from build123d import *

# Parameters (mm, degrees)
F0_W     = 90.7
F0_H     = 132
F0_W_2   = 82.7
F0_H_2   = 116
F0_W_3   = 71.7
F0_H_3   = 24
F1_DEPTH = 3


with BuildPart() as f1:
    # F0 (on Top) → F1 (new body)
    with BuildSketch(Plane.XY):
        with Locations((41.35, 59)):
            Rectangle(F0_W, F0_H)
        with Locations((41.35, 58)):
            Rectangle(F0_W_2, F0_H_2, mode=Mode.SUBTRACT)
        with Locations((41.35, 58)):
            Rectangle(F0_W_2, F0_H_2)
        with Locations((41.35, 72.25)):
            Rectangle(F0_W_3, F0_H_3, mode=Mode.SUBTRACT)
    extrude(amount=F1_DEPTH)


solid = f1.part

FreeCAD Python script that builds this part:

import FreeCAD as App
import Part
import Sketcher
from FreeCAD import Vector
Q = App.Units.Quantity


def add_polygon(sketch, points):
    """Adds a closed chain of lines whose ends are joined by coincident constraints."""
    first, n = sketch.GeometryCount, len(points)
    for a, b in zip(points, points[1:] + points[:1]):
        sketch.addGeometry(Part.LineSegment(App.Vector(*a, 0), App.Vector(*b, 0)), False)
    for i in range(n):
        sketch.addConstraint(Sketcher.Constraint("Coincident", first + i, 2, first + (i + 1) % n, 1))

doc = App.newDocument("Part")
body = doc.addObject("PartDesign::Body", "Body")

# Sketch on XY plane
sketch1 = body.newObject("Sketcher::SketchObject", "Sketch")
sketch1.AttachmentSupport = (doc.getObject("XY_Plane"), [""])
sketch1.MapMode = "FlatFace"
add_polygon(sketch1, [(-4, 125), (-4, -7), (86.7, -7), (86.7, 125)])  # lines 0-3
add_polygon(sketch1, [(77.2, 60.25), (5.5, 60.25), (5.5, 84.25), (77.2, 84.25)])  # lines 4-7
sketch1.addConstraint([
    Sketcher.Constraint("Vertical", 0),
    Sketcher.Constraint("Horizontal", 1),
    Sketcher.Constraint("Vertical", 2),
    Sketcher.Constraint("Horizontal", 3),
    Sketcher.Constraint("Horizontal", 4),
    Sketcher.Constraint("Vertical", 5),
    Sketcher.Constraint("Horizontal", 6),
    Sketcher.Constraint("Vertical", 7),
    Sketcher.Constraint("DistanceY", 0, 2, 0, 1, Q("132 mm")),
    Sketcher.Constraint("DistanceY", 5, 1, 5, 2, Q("24 mm")),
    Sketcher.Constraint("DistanceX", 1, 1, 1, 2, Q("90.7 mm")),
    Sketcher.Constraint("DistanceX", 4, 2, 4, 1, Q("71.7 mm")),
    Sketcher.Constraint("DistanceX", 0, 2, -1, 1, Q("4 mm")),
    Sketcher.Constraint("DistanceY", 0, 2, -1, 1, Q("7 mm")),
    Sketcher.Constraint("DistanceX", -1, 1, 4, 2, Q("5.5 mm")),
    Sketcher.Constraint("DistanceY", -1, 1, 4, 2, Q("60.25 mm")),
])
pad1 = body.newObject("PartDesign::Pad", "Pad")
pad1.Profile = sketch1
pad1.Length = 3

doc.recompute()
